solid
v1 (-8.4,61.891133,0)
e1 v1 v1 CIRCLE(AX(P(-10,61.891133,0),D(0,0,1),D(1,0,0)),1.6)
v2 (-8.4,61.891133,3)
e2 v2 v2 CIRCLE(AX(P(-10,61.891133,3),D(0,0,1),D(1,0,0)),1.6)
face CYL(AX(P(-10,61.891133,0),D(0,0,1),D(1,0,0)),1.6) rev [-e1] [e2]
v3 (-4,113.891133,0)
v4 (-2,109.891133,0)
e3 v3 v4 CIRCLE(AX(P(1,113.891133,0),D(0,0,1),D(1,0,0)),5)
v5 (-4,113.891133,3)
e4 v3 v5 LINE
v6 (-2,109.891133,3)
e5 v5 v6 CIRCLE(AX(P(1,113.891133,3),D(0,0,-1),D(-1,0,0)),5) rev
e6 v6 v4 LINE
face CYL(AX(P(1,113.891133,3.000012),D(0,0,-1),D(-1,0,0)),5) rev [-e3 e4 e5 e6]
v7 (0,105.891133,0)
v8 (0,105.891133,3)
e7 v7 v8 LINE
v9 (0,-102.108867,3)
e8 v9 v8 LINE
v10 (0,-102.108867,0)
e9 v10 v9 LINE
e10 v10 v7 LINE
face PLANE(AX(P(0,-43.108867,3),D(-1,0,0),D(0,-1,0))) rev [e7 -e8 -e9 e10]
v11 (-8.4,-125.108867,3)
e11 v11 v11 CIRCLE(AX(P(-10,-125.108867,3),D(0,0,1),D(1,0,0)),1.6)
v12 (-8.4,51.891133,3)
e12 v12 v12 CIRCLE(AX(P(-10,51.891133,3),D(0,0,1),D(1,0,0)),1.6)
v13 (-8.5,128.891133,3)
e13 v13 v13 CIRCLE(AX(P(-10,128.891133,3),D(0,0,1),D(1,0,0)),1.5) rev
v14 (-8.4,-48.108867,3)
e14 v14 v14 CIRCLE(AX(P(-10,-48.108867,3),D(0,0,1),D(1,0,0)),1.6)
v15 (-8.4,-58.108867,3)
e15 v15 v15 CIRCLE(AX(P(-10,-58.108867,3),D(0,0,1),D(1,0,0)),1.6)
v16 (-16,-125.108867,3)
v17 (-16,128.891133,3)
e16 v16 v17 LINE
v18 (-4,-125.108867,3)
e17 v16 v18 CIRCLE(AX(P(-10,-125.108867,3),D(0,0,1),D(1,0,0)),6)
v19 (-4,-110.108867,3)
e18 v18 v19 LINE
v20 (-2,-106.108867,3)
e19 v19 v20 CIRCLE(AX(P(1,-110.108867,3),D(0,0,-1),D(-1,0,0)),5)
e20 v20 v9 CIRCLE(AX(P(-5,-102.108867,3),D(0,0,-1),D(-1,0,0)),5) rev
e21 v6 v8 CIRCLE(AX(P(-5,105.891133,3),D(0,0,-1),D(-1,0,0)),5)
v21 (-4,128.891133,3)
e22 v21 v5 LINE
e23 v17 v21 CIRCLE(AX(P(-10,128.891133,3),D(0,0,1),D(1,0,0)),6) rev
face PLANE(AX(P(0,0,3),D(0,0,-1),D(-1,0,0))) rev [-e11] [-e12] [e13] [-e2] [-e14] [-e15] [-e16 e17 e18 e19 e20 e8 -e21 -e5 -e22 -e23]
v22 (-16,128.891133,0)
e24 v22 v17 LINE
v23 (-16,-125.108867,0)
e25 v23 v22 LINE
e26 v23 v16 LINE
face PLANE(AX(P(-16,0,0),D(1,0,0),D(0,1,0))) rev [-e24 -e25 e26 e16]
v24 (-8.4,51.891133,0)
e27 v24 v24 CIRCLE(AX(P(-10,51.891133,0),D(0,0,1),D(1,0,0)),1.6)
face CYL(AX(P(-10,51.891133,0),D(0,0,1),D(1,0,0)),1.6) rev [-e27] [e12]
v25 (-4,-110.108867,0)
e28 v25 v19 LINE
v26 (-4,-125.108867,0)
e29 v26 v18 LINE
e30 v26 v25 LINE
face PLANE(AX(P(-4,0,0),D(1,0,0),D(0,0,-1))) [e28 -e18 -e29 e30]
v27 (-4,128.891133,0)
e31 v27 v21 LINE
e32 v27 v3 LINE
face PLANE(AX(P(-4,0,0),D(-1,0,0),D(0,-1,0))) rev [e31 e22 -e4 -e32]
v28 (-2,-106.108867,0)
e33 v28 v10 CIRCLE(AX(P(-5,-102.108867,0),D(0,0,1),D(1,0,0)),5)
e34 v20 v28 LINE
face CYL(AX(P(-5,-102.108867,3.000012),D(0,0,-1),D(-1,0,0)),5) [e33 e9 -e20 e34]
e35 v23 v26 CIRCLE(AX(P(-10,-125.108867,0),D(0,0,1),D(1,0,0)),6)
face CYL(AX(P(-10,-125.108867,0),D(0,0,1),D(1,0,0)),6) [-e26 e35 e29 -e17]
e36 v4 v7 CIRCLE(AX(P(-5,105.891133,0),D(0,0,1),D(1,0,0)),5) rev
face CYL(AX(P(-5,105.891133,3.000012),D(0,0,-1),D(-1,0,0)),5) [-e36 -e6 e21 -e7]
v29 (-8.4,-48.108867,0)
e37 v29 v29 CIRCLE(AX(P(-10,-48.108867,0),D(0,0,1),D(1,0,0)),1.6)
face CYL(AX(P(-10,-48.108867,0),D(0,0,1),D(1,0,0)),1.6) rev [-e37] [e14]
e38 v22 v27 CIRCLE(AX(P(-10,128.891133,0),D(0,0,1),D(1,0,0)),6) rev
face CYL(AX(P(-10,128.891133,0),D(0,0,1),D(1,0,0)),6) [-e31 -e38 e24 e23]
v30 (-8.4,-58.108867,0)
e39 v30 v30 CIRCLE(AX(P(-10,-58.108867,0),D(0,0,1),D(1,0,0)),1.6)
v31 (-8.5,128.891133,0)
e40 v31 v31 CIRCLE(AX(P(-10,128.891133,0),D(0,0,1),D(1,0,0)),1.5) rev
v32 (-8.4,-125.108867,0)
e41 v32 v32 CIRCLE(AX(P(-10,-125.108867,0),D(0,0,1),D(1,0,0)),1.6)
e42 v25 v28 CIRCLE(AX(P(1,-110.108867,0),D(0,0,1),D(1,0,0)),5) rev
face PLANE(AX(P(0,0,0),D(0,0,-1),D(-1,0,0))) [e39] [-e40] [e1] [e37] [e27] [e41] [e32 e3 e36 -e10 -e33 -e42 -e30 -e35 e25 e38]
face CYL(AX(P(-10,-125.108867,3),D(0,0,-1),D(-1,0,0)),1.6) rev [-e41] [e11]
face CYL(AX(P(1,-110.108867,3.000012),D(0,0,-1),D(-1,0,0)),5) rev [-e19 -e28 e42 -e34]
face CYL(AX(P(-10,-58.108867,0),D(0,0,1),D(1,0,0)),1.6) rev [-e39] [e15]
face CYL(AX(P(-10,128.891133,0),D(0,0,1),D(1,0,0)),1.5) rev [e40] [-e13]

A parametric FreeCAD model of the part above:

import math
import FreeCAD as App
import Part
import Sketcher

doc = App.newDocument("Part")
body = doc.addObject("PartDesign::Body", "Body")

sketch1 = body.newObject("Sketcher::SketchObject", "Sketch")
sketch1.AttachmentSupport = (doc.getObject("XY_Plane"), [""])
sketch1.MapMode = "FlatFace"
sketch1.addGeometry([
    Part.LineSegment(App.Vector(-18, -43.108867, 0), App.Vector(-18, -133.108867, 0)),
    Part.LineSegment(App.Vector(-18, -133.108867, 0), App.Vector(0, -133.108867, 0)),
    Part.LineSegment(App.Vector(0, -133.108867, 0), App.Vector(0, -43.108867, 0)),
    Part.LineSegment(App.Vector(0, -43.108867, 0), App.Vector(-18, -43.108867, 0)),
    Part.Circle(App.Vector(-10, -125.108867, 0), App.Vector(0, 0, 1), 1.6),
], False)
sketch1.addConstraint([
    Sketcher.Constraint("Coincident", 0, 2, 1, 1),
    Sketcher.Constraint("Coincident", 1, 2, 2, 1),
    Sketcher.Constraint("Coincident", 2, 2, 3, 1),
    Sketcher.Constraint("Coincident", 3, 2, 0, 1),
    Sketcher.Constraint("Vertical", 0),
    Sketcher.Constraint("Horizontal", 1),
    Sketcher.Constraint("Vertical", 2),
    Sketcher.Constraint("Horizontal", 3),
    Sketcher.Constraint("PointOnObject", 1, 2, -2),
    Sketcher.Constraint("Diameter", 4, 3.2),
    Sketcher.Constraint("DistanceX", 1, 1, 1, 2, 18.0),
    Sketcher.Constraint("DistanceY", 0, 2, 0, 1, 90.0),
    Sketcher.Constraint("DistanceX", 4, 3, -1, 1, 10.0),
    Sketcher.Constraint("DistanceY", 0, 2, 4, 3, 8.0),
    Sketcher.Constraint("DistanceY", 4, 3, -1, 1, 125.108867),
])
pad1 = body.newObject("PartDesign::Pad", "Pad")
pad1.Profile = sketch1
pad1.Length = 3

sketch2 = body.newObject("Sketcher::SketchObject", "Sketch001")
sketch2.AttachmentSupport = (doc.getObject("XY_Plane"), [""])
sketch2.MapMode = "FlatFace"
sketch2.AttachmentOffset = App.Placement(App.Vector(0, 0, 3), App.Rotation())
sketch2.addGeometry([
    Part.LineSegment(App.Vector(-18, 136.891133, 0), App.Vector(-18, -43.108867, 0)),
    Part.LineSegment(App.Vector(-18, -43.108867, 0), App.Vector(0, -43.108867, 0)),
    Part.LineSegment(App.Vector(0, -43.108867, 0), App.Vector(0, 136.891133, 0)),
    Part.LineSegment(App.Vector(0, 136.891133, 0), App.Vector(-18, 136.891133, 0)),
    Part.Circle(App.Vector(-10, 128.891133, 0), App.Vector(0, 0, 1), 1.5),
], False)
sketch2.addConstraint([
    Sketcher.Constraint("Coincident", 0, 2, 1, 1),
    Sketcher.Constraint("Coincident", 1, 2, 2, 1),
    Sketcher.Constraint("Coincident", 2, 2, 3, 1),
    Sketcher.Constraint("Coincident", 3, 2, 0, 1),
    Sketcher.Constraint("Vertical", 0),
    Sketcher.Constraint("Horizontal", 1),
    Sketcher.Constraint("Vertical", 2),
    Sketcher.Constraint("Horizontal", 3),
    Sketcher.Constraint("PointOnObject", 1, 2, -2),
    Sketcher.Constraint("Diameter", 4, 3.0),
    Sketcher.Constraint("DistanceX", 1, 1, 1, 2, 18.0),
    Sketcher.Constraint("DistanceY", 0, 2, 0, 1, 180.0),
    Sketcher.Constraint("DistanceX", 4, 3, -1, 1, 10.0),
    Sketcher.Constraint("DistanceY", 0, 2, 4, 3, 172.0),
    Sketcher.Constraint("DistanceY", -1, 1, 4, 3, 128.891133),
])
pad2 = body.newObject("PartDesign::Pad", "Pad001")
pad2.Profile = sketch2
pad2.Length = 3
pad2.Reversed = True

sketch3 = body.newObject("Sketcher::SketchObject", "Sketch002")
sketch3.AttachmentSupport = (doc.getObject("XY_Plane"), [""])
sketch3.MapMode = "FlatFace"
sketch3.AttachmentOffset = App.Placement(App.Vector(0, 0, 3), App.Rotation())
sketch3.addGeometry([
    Part.Circle(App.Vector(-10, -58.108867, 0), App.Vector(0, 0, 1), 1.6),
    Part.Circle(App.Vector(-10, -48.108867, 0), App.Vector(0, 0, 1), 1.6),
    Part.Circle(App.Vector(-10, 51.891133, 0), App.Vector(0, 0, 1), 1.6),
    Part.Circle(App.Vector(-10, 61.891133, 0), App.Vector(0, 0, 1), 1.6),
], False)
sketch3.addConstraint([
    Sketcher.Constraint("Equal", 0, 1),
    Sketcher.Constraint("Equal", 1, 2),
    Sketcher.Constraint("Equal", 2, 3),
    Sketcher.Constraint("Vertical", 0, 3, 1, 3),
    Sketcher.Constraint("Vertical", 1, 3, 2, 3),
    Sketcher.Constraint("Vertical", 2, 3, 3, 3),
    Sketcher.Constraint("Diameter", 0, 3.2),
    Sketcher.Constraint("DistanceX", 0, 3, -1, 1, 10.0),
    Sketcher.Constraint("DistanceY", 0, 3, 1, 3, 10.0),
    Sketcher.Constraint("DistanceY", 1, 3, 2, 3, 100.0),
    Sketcher.Constraint("DistanceY", 2, 3, 3, 3, 10.0),
    Sketcher.Constraint("DistanceY", 0, 3, -1, 1, 58.108867),
])
pocket1 = body.newObject("PartDesign::Pocket", "Pocket")
pocket1.Profile = sketch3
pocket1.Length = 3

sketch4 = body.newObject("Sketcher::SketchObject", "Sketch003")
sketch4.AttachmentSupport = (doc.getObject("XY_Plane"), [""])
sketch4.MapMode = "FlatFace"
sketch4.AttachmentOffset = App.Placement(App.Vector(0, 0, 3), App.Rotation())
sketch4.addGeometry([
    Part.LineSegment(App.Vector(-4, -110.108867, 0), App.Vector(-4, -125.108867, 0)),
    Part.ArcOfCircle(Part.Circle(App.Vector(-10, -125.108867, 0), App.Vector(0, 0, 1), 6), math.radians(180), math.radians(360)),
    Part.LineSegment(App.Vector(-16, -125.108867, 0), App.Vector(-16, 128.891133, 0)),
    Part.ArcOfCircle(Part.Circle(App.Vector(-10, 128.891133, 0), App.Vector(0, 0, 1), 6), math.radians(0), math.radians(180)),
    Part.LineSegment(App.Vector(-4, 128.891133, 0), App.Vector(-4, 113.891133, 0)),
    Part.ArcOfCircle(Part.Circle(App.Vector(1, 113.891133, 0), App.Vector(0, 0, 1), 5), math.radians(-180), math.radians(-126.869898)),
    Part.ArcOfCircle(Part.Circle(App.Vector(-5, 105.891133, 0), App.Vector(0, 0, 1), 5), math.radians(0), math.radians(53.130102)),
    Part.LineSegment(App.Vector(0, 105.891133, 0), App.Vector(0, 136.891133, 0)),
    Part.LineSegment(App.Vector(0, 136.891133, 0), App.Vector(-18, 136.891133, 0)),
    Part.LineSegment(App.Vector(-18, 136.891133, 0), App.Vector(-18, -133.108867, 0)),
    Part.LineSegment(App.Vector(-18, -133.108867, 0), App.Vector(0, -133.108867, 0)),
    Part.LineSegment(App.Vector(0, -133.108867, 0), App.Vector(0, -102.108867, 0)),
    Part.ArcOfCircle(Part.Circle(App.Vector(-5, -102.108867, 0), App.Vector(0, 0, 1), 5), math.radians(-53.130102), math.radians(0)),
    Part.ArcOfCircle(Part.Circle(App.Vector(1, -110.108867, 0), App.Vector(0, 0, 1), 5), math.radians(126.869898), math.radians(180)),
], False)
sketch4.addConstraint([
    Sketcher.Constraint("Tangent", 0, 2, 1, 2),
    Sketcher.Constraint("Tangent", 1, 1, 2, 1),
    Sketcher.Constraint("Tangent", 2, 2, 3, 2),
    Sketcher.Constraint("Tangent", 3, 1, 4, 1),
    Sketcher.Constraint("Tangent", 4, 2, 5, 1),
    Sketcher.Constraint("Tangent", 5, 2, 6, 2),
    Sketcher.Constraint("Tangent", 6, 1, 7, 1),
    Sketcher.Constraint("Coincident", 7, 2, 8, 1),
    Sketcher.Constraint("Coincident", 8, 2, 9, 1),
    Sketcher.Constraint("Coincident", 9, 2, 10, 1),
    Sketcher.Constraint("Coincident", 10, 2, 11, 1),
    Sketcher.Constraint("Tangent", 11, 2, 12, 2),
    Sketcher.Constraint("Tangent", 12, 1, 13, 1),
    Sketcher.Constraint("Tangent", 13, 2, 0, 1),
    Sketcher.Constraint("Vertical", 0),
    Sketcher.Constraint("Vertical", 2),
    Sketcher.Constraint("Vertical", 4),
    Sketcher.Constraint("Vertical", 7),
    Sketcher.Constraint("Horizontal", 8),
    Sketcher.Constraint("Vertical", 9),
    Sketcher.Constraint("Horizontal", 10),
    Sketcher.Constraint("Vertical", 11),
    Sketcher.Constraint("Equal", 1, 3),
    Sketcher.Constraint("Equal", 5, 6),
    Sketcher.Constraint("Equal", 6, 12),
    Sketcher.Constraint("Equal", 12, 13),
    Sketcher.Constraint("PointOnObject", 6, 1, -2),
    Sketcher.Constraint("PointOnObject", 10, 2, -2),
    Sketcher.Constraint("Equal", 0, 4),
    Sketcher.Constraint("Equal", 7, 11),
    Sketcher.Constraint("Radius", 1, 6.0),
    Sketcher.Constraint("Radius", 5, 5.0),
    Sketcher.Constraint("DistanceX", 8, 2, 8, 1, 18.0),
    Sketcher.Constraint("DistanceY", 0, 2, 0, 1, 15.0),
    Sketcher.Constraint("DistanceY", 2, 1, 2, 2, 254.0),
    Sketcher.Constraint("DistanceY", 7, 1, 7, 2, 31.0),
    Sketcher.Constraint("DistanceY", 9, 2, 9, 1, 270.0),
    Sketcher.Constraint("DistanceY", 1, 3, -1, 1, 125.108867),
])
pocket2 = body.newObject("PartDesign::Pocket", "Pocket001")
pocket2.Profile = sketch4
pocket2.Type = "ThroughAll"
pocket2.Midplane = True

doc.recompute()
